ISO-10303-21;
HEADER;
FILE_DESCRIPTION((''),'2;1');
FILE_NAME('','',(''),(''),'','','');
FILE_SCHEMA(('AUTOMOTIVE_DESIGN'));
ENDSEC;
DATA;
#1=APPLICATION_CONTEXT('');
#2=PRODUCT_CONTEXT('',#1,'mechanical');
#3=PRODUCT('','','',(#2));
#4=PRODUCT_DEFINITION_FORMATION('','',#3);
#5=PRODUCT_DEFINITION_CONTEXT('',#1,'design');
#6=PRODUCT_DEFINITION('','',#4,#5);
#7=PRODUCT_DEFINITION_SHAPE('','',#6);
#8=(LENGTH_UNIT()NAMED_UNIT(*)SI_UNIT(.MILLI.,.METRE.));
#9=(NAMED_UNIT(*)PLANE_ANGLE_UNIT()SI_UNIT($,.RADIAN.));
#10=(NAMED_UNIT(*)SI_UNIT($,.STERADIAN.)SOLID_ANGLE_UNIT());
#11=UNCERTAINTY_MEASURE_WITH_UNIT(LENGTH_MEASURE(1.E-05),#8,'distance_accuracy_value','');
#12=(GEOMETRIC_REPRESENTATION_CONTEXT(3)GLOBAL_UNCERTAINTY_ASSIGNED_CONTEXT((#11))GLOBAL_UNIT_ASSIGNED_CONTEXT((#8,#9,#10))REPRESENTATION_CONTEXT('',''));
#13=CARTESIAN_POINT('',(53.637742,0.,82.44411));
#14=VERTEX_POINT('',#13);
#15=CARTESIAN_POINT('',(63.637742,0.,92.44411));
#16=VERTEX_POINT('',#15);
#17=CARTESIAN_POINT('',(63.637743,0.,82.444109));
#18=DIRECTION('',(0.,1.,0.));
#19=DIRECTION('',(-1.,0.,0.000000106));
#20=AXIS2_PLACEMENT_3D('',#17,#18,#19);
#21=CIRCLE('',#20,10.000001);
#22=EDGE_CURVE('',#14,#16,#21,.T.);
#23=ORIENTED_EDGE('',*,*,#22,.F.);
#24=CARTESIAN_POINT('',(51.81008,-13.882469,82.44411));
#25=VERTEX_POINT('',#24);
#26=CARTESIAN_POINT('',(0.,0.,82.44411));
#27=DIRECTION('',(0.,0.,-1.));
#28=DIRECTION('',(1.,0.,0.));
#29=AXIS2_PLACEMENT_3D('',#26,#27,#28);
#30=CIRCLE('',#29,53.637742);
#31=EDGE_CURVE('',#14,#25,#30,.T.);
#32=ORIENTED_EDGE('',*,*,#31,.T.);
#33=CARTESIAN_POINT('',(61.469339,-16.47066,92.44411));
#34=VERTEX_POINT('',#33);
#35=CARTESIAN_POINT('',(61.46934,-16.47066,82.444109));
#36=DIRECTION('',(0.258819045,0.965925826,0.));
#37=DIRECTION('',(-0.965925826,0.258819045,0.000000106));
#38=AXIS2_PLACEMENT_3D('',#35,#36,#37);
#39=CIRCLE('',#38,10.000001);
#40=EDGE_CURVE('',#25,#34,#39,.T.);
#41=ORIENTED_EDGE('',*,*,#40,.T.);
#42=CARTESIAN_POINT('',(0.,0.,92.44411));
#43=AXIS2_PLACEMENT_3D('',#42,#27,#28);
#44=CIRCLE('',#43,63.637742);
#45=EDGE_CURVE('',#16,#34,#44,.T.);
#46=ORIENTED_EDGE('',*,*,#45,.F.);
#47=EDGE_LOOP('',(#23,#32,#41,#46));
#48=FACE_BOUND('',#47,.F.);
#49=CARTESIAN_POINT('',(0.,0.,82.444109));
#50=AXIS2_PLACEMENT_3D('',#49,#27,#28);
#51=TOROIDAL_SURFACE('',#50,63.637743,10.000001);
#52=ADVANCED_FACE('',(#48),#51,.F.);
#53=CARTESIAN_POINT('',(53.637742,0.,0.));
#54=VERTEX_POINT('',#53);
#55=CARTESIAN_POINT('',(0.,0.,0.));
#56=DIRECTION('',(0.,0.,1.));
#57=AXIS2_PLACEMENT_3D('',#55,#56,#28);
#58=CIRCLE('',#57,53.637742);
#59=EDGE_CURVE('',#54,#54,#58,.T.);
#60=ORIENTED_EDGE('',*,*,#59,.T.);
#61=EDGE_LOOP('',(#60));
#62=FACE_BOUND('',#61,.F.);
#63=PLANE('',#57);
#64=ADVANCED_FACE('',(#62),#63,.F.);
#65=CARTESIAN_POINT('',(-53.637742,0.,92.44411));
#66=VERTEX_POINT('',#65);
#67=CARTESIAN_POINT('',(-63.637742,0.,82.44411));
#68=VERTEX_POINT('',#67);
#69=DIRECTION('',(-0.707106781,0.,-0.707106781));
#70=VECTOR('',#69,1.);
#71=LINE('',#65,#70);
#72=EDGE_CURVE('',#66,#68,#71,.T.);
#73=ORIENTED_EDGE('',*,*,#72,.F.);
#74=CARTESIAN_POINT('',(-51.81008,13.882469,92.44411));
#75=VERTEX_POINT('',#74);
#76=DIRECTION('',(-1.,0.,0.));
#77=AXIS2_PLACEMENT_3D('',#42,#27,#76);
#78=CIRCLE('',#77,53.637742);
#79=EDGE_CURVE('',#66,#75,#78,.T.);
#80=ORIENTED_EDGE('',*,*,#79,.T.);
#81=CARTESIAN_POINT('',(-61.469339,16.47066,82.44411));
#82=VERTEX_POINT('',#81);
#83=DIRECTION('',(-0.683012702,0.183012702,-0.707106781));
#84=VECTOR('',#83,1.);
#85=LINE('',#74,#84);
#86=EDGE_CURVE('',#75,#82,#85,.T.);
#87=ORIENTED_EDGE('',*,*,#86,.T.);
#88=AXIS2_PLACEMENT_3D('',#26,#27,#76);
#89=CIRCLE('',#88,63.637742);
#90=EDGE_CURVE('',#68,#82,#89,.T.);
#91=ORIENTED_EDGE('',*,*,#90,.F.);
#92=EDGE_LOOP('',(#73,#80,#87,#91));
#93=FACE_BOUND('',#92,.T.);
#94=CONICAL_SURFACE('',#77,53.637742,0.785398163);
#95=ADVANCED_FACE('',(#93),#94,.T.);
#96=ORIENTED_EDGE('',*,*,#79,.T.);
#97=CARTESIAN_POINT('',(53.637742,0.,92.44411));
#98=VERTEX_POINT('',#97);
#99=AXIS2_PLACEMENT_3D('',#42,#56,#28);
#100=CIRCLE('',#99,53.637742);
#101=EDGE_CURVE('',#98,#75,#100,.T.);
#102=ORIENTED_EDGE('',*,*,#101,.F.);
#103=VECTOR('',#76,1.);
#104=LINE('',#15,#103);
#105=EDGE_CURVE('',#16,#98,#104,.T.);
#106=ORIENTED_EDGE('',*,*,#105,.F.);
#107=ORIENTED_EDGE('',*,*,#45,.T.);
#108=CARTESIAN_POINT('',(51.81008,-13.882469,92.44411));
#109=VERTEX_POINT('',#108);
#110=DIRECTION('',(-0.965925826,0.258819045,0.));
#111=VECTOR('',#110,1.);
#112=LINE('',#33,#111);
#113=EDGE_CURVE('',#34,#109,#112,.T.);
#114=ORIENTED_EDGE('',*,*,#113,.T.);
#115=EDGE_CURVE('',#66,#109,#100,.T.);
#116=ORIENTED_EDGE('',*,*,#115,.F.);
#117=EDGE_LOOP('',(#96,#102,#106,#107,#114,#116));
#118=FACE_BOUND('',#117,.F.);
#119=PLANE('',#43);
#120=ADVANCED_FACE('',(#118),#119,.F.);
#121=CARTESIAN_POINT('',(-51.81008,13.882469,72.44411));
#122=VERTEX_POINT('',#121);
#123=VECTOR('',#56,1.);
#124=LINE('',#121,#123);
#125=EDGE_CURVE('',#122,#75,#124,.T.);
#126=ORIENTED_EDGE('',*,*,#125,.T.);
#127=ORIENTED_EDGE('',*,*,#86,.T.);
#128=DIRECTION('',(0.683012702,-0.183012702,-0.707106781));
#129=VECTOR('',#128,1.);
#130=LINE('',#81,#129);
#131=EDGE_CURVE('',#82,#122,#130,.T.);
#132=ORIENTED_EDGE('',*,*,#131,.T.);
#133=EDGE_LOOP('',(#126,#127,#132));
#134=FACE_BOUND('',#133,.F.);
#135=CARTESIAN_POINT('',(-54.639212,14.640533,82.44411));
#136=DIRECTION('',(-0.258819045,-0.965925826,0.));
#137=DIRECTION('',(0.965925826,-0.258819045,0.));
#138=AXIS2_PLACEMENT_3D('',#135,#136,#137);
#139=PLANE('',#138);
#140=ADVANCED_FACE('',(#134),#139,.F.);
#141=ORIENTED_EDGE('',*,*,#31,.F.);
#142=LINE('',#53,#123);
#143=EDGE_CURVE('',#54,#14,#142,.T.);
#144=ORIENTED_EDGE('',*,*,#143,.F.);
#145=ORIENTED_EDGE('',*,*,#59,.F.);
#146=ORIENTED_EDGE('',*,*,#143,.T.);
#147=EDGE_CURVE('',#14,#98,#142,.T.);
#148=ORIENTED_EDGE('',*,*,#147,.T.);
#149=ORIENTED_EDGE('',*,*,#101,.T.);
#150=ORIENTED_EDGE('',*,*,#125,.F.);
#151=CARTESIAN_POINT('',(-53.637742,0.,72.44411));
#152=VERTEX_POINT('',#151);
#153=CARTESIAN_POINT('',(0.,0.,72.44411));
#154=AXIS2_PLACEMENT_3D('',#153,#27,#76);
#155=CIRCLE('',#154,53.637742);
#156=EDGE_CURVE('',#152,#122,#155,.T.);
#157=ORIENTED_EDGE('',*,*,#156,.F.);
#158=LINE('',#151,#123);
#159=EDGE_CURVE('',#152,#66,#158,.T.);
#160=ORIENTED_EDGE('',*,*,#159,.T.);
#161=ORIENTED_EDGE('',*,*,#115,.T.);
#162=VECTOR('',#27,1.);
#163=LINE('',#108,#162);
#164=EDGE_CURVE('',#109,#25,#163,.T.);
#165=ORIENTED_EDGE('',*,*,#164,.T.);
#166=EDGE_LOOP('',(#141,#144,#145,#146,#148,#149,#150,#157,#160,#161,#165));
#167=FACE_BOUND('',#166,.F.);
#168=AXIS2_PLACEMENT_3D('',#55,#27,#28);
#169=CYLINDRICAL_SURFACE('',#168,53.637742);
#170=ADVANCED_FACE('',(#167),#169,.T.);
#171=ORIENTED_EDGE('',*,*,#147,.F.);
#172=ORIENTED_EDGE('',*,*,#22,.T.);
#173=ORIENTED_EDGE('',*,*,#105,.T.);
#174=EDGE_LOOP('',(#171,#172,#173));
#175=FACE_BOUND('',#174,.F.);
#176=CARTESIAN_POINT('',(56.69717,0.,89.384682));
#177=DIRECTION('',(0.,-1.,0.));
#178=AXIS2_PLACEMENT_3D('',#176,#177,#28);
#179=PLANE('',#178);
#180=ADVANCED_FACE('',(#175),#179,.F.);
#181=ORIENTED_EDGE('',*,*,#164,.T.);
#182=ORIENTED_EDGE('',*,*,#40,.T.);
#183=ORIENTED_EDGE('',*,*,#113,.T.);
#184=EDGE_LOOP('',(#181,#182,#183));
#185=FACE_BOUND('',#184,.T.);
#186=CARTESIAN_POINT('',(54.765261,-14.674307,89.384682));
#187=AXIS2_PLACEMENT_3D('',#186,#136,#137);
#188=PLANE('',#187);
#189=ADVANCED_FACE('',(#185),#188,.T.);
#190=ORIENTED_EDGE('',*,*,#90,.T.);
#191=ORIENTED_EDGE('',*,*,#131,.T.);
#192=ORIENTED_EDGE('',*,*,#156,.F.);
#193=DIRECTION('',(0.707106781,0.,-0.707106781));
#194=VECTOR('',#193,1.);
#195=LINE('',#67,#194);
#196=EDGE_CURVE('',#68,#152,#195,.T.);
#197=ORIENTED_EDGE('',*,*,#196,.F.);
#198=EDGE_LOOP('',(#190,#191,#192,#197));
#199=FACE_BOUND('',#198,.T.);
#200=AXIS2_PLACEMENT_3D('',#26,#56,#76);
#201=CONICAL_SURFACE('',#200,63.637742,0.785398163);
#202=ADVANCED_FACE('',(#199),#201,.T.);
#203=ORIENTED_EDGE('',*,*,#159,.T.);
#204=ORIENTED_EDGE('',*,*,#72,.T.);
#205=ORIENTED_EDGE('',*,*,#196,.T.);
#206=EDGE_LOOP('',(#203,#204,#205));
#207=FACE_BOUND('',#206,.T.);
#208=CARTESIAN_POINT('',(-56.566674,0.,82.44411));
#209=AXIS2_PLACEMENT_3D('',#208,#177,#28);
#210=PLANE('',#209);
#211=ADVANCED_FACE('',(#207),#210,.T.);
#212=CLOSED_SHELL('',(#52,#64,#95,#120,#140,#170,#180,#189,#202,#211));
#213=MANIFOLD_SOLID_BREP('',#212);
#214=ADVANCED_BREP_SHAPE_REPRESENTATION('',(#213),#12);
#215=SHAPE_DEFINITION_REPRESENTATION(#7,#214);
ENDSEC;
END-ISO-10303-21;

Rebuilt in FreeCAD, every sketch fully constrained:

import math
import FreeCAD as App
import Part
import Sketcher
Q = App.Units.Quantity


def add_polygon(sketch, points):
    """Adds a closed chain of lines whose ends are joined by coincident constraints."""
    first, n = sketch.GeometryCount, len(points)
    for a, b in zip(points, points[1:] + points[:1]):
        sketch.addGeometry(Part.LineSegment(App.Vector(*a, 0), App.Vector(*b, 0)), False)
    for i in range(n):
        sketch.addConstraint(Sketcher.Constraint("Coincident", first + i, 2, first + (i + 1) % n, 1))

doc = App.newDocument("Part")
body = doc.addObject("PartDesign::Body", "Body")

# Sketch on XY plane
sketch1 = doc.addObject("Sketcher::SketchObject", "Sketch")
body.addObject(sketch1)
sketch1.AttachmentSupport = (doc.XY_Plane, [""])
sketch1.MapMode = "FlatFace"
sketch1.addGeometry(Part.Circle(App.Vector(0, 0, 0), App.Vector(0, 0, 1), 53.637742), False)
sketch1.addConstraint([
    Sketcher.Constraint("Coincident", 0, 3, -1, 1),
    Sketcher.Constraint("Diameter", 0, Q("107.275484 mm")),
])
pad1 = doc.addObject("PartDesign::Pad", "Pad")
body.addObject(pad1)
pad1.Profile = sketch1
pad1.Length = 92.44411

# Sketch on XZ plane
sketch2 = doc.addObject("Sketcher::SketchObject", "Sketch001")
body.addObject(sketch2)
sketch2.AttachmentSupport = (doc.XZ_Plane, [""])
sketch2.MapMode = "FlatFace"
sketch2.addGeometry([
    Part.LineSegment(App.Vector(63.637742, 92.44411, 0), App.Vector(53.637742, 92.44411, 0)),
    Part.LineSegment(App.Vector(53.637742, 92.44411, 0), App.Vector(53.637742, 82.44411, 0)),
    Part.ArcOfCircle(Part.Circle(App.Vector(63.637743, 82.444109, 0), App.Vector(0, 0, 1), 10.000001), math.radians(90.000006), math.radians(179.999994)),
], False)
sketch2.addConstraint([
    Sketcher.Constraint("Coincident", 0, 2, 1, 1),
    Sketcher.Constraint("Tangent", 1, 2, 2, 2),
    Sketcher.Constraint("Tangent", 2, 1, 0, 1),
    Sketcher.Constraint("Horizontal", 0),
    Sketcher.Constraint("Vertical", 1),
    Sketcher.Constraint("Radius", 2, Q("10.000001 mm")),
    Sketcher.Constraint("DistanceY", -1, 1, 2, 3, Q("82.444109 mm")),
    Sketcher.Constraint("DistanceX", -1, 1, 2, 3, Q("63.637743 mm")),
])
revolution = doc.addObject("PartDesign::Revolution", "Revolution")
body.addObject(revolution)
revolution.Profile = sketch2
revolution.ReferenceAxis = (sketch2, ["V_Axis"])
revolution.Angle = 15
revolution.Reversed = True

# Sketch on XZ plane
sketch3 = doc.addObject("Sketcher::SketchObject", "Sketch002")
body.addObject(sketch3)
sketch3.AttachmentSupport = (doc.XZ_Plane, [""])
sketch3.MapMode = "FlatFace"
add_polygon(sketch3, [(-63.637742, 82.44411), (-53.637742, 72.44411), (-53.637742, 92.44411)])  # lines 0-2
sketch3.addConstraint([
    Sketcher.Constraint("Vertical", 1),
    Sketcher.Constraint("Perpendicular", 0, 2),
    Sketcher.Constraint("Equal", 0, 2),
    Sketcher.Constraint("DistanceY", 1, 1, 1, 2, Q("20 mm")),
    Sketcher.Constraint("DistanceY", -1, 1, 0, 2, Q("72.44411 mm")),
    Sketcher.Constraint("DistanceX", 0, 2, -1, 1, Q("53.637742 mm")),
])
revolution2 = doc.addObject("PartDesign::Revolution", "Revolution001")
body.addObject(revolution2)
revolution2.Profile = sketch3
revolution2.ReferenceAxis = (sketch3, ["V_Axis"])
revolution2.Angle = 15
revolution2.Reversed = True

doc.recompute()
